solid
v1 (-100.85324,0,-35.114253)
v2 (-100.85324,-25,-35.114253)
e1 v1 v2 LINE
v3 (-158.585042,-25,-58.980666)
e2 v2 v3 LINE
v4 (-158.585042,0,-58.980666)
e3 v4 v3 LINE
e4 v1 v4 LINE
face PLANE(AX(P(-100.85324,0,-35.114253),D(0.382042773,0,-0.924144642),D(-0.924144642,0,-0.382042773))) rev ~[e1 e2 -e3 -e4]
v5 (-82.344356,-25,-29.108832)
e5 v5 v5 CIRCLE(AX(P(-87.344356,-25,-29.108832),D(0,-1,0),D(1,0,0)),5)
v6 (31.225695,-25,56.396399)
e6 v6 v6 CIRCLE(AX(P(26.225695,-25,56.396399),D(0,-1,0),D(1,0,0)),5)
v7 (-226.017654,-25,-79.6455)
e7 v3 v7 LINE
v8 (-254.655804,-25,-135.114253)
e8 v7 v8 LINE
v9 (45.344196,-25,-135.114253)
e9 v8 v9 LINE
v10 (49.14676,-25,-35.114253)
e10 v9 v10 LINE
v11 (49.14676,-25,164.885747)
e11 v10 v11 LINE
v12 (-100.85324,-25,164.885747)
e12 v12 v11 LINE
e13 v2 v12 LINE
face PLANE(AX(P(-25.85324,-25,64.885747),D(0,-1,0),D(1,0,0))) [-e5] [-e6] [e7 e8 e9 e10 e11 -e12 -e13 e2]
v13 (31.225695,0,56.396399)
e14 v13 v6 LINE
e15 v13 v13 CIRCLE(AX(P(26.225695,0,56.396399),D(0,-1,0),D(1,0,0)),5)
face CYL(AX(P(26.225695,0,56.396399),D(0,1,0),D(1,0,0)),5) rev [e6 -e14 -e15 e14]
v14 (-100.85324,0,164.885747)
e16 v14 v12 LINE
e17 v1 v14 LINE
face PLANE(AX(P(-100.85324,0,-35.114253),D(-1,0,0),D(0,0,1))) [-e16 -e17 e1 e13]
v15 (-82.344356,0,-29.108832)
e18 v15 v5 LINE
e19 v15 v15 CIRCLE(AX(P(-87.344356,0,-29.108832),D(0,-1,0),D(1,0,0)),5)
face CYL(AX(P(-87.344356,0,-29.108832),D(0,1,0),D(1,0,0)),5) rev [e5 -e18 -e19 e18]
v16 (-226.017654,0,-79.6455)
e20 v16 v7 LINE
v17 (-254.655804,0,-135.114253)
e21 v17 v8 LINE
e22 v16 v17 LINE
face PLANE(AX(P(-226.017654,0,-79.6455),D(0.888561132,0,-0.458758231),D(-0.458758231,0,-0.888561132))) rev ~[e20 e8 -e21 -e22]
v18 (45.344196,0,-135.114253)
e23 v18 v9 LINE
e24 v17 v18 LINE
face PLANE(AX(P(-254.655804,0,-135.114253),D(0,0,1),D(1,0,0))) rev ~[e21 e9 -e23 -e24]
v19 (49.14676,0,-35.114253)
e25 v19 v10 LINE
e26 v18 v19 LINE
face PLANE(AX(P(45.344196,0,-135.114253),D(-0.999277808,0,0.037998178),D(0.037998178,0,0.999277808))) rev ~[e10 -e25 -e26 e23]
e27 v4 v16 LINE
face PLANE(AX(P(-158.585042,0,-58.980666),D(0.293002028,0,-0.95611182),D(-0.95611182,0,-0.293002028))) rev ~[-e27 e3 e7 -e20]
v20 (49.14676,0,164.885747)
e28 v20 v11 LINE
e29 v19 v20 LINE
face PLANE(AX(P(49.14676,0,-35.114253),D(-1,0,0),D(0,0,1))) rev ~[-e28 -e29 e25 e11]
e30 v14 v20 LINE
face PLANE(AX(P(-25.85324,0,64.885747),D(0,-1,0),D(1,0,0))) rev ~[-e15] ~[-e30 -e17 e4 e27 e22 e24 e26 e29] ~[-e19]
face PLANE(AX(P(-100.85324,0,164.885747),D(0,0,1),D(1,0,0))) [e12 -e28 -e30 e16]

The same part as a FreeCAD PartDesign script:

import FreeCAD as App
import Part
import Sketcher

doc = App.newDocument("Part")
body = doc.addObject("PartDesign::Body", "Body")

# Sketch on XZ plane
sketch1 = body.newObject("Sketcher::SketchObject", "Sketch")
sketch1.AttachmentSupport = (doc.getObject("XZ_Plane"), [""])
sketch1.MapMode = "FlatFace"
sketch1.addGeometry(Part.LineSegment(App.Vector(-101, 165, 0), App.Vector(-101, -35, 0)), False)
sketch1.addGeometry(Part.LineSegment(App.Vector(-101, -35, 0), App.Vector(-159, -59, 0)), False)
sketch1.addGeometry(Part.LineSegment(App.Vector(-159, -59, 0), App.Vector(-226, -80, 0)), False)
sketch1.addGeometry(Part.LineSegment(App.Vector(-226, -80, 0), App.Vector(-255, -135, 0)), False)
sketch1.addGeometry(Part.LineSegment(App.Vector(-255, -135, 0), App.Vector(45, -135, 0)), False)
sketch1.addGeometry(Part.LineSegment(App.Vector(45, -135, 0), App.Vector(49, -35, 0)), False)
sketch1.addGeometry(Part.LineSegment(App.Vector(49, -35, 0), App.Vector(49, 165, 0)), False)
sketch1.addGeometry(Part.LineSegment(App.Vector(49, 165, 0), App.Vector(-101, 165, 0)), False)
sketch1.addGeometry(Part.Circle(App.Vector(-87, -29, 0), App.Vector(0, 0, 1), 5), False)
sketch1.addGeometry(Part.Circle(App.Vector(26, 56, 0), App.Vector(0, 0, 1), 5), False)
sketch1.addConstraint(Sketcher.Constraint("Coincident", 0, 2, 1, 1))
sketch1.addConstraint(Sketcher.Constraint("Coincident", 1, 2, 2, 1))
sketch1.addConstraint(Sketcher.Constraint("Coincident", 2, 2, 3, 1))
sketch1.addConstraint(Sketcher.Constraint("Coincident", 3, 2, 4, 1))
sketch1.addConstraint(Sketcher.Constraint("Coincident", 4, 2, 5, 1))
sketch1.addConstraint(Sketcher.Constraint("Coincident", 5, 2, 6, 1))
sketch1.addConstraint(Sketcher.Constraint("Coincident", 6, 2, 7, 1))
sketch1.addConstraint(Sketcher.Constraint("Coincident", 7, 2, 0, 1))
sketch1.addConstraint(Sketcher.Constraint("Vertical", 0))
sketch1.addConstraint(Sketcher.Constraint("Horizontal", 4))
sketch1.addConstraint(Sketcher.Constraint("Vertical", 6))
sketch1.addConstraint(Sketcher.Constraint("Horizontal", 7))
sketch1.addConstraint(Sketcher.Constraint("Equal", 8, 9))
sketch1.addConstraint(Sketcher.Constraint("Horizontal", 0, 2, 5, 2))
sketch1.addConstraint(Sketcher.Constraint("Diameter", 8, 10.0))
sketch1.addConstraint(Sketcher.Constraint("DistanceX", 4, 1, 4, 2, 300.0))
sketch1.addConstraint(Sketcher.Constraint("DistanceX", 7, 2, 7, 1, 150.0))
sketch1.addConstraint(Sketcher.Constraint("DistanceY", 0, 2, 0, 1, 200.0))
sketch1.addConstraint(Sketcher.Constraint("DistanceY", 3, 2, 0, 2, 100.0))
sketch1.addConstraint(Sketcher.Constraint("DistanceY", -1, 1, 9, 3, 56.396399))
sketch1.addConstraint(Sketcher.Constraint("DistanceY", 2, 2, -1, 1, 79.6455))
sketch1.addConstraint(Sketcher.Constraint("DistanceX", 1, 2, 0, 2, 57.731802))
sketch1.addConstraint(Sketcher.Constraint("DistanceX", 3, 2, 9, 3, 280.881499))
sketch1.addConstraint(Sketcher.Constraint("Distance", 5, 100.072271))
sketch1.addConstraint(Sketcher.Constraint("DistanceY", 8, 3, -1, 1, 29.108832))
sketch1.addConstraint(Sketcher.Constraint("DistanceX", 0, 2, -1, 1, 100.85324))
sketch1.addConstraint(Sketcher.Constraint("DistanceX", 8, 3, 9, 3, 113.570051))
sketch1.addConstraint(Sketcher.Constraint("DistanceY", 0, 2, 8, 3, 6.005421))
sketch1.addConstraint(Sketcher.Constraint("DistanceX", 2, 2, 9, 3, 252.243349))
sketch1.addConstraint(Sketcher.Constraint("Distance", 1, 62.470526))
pad1 = body.newObject("PartDesign::Pad", "Pad")
pad1.Profile = sketch1
pad1.Length = 25

doc.recompute()
